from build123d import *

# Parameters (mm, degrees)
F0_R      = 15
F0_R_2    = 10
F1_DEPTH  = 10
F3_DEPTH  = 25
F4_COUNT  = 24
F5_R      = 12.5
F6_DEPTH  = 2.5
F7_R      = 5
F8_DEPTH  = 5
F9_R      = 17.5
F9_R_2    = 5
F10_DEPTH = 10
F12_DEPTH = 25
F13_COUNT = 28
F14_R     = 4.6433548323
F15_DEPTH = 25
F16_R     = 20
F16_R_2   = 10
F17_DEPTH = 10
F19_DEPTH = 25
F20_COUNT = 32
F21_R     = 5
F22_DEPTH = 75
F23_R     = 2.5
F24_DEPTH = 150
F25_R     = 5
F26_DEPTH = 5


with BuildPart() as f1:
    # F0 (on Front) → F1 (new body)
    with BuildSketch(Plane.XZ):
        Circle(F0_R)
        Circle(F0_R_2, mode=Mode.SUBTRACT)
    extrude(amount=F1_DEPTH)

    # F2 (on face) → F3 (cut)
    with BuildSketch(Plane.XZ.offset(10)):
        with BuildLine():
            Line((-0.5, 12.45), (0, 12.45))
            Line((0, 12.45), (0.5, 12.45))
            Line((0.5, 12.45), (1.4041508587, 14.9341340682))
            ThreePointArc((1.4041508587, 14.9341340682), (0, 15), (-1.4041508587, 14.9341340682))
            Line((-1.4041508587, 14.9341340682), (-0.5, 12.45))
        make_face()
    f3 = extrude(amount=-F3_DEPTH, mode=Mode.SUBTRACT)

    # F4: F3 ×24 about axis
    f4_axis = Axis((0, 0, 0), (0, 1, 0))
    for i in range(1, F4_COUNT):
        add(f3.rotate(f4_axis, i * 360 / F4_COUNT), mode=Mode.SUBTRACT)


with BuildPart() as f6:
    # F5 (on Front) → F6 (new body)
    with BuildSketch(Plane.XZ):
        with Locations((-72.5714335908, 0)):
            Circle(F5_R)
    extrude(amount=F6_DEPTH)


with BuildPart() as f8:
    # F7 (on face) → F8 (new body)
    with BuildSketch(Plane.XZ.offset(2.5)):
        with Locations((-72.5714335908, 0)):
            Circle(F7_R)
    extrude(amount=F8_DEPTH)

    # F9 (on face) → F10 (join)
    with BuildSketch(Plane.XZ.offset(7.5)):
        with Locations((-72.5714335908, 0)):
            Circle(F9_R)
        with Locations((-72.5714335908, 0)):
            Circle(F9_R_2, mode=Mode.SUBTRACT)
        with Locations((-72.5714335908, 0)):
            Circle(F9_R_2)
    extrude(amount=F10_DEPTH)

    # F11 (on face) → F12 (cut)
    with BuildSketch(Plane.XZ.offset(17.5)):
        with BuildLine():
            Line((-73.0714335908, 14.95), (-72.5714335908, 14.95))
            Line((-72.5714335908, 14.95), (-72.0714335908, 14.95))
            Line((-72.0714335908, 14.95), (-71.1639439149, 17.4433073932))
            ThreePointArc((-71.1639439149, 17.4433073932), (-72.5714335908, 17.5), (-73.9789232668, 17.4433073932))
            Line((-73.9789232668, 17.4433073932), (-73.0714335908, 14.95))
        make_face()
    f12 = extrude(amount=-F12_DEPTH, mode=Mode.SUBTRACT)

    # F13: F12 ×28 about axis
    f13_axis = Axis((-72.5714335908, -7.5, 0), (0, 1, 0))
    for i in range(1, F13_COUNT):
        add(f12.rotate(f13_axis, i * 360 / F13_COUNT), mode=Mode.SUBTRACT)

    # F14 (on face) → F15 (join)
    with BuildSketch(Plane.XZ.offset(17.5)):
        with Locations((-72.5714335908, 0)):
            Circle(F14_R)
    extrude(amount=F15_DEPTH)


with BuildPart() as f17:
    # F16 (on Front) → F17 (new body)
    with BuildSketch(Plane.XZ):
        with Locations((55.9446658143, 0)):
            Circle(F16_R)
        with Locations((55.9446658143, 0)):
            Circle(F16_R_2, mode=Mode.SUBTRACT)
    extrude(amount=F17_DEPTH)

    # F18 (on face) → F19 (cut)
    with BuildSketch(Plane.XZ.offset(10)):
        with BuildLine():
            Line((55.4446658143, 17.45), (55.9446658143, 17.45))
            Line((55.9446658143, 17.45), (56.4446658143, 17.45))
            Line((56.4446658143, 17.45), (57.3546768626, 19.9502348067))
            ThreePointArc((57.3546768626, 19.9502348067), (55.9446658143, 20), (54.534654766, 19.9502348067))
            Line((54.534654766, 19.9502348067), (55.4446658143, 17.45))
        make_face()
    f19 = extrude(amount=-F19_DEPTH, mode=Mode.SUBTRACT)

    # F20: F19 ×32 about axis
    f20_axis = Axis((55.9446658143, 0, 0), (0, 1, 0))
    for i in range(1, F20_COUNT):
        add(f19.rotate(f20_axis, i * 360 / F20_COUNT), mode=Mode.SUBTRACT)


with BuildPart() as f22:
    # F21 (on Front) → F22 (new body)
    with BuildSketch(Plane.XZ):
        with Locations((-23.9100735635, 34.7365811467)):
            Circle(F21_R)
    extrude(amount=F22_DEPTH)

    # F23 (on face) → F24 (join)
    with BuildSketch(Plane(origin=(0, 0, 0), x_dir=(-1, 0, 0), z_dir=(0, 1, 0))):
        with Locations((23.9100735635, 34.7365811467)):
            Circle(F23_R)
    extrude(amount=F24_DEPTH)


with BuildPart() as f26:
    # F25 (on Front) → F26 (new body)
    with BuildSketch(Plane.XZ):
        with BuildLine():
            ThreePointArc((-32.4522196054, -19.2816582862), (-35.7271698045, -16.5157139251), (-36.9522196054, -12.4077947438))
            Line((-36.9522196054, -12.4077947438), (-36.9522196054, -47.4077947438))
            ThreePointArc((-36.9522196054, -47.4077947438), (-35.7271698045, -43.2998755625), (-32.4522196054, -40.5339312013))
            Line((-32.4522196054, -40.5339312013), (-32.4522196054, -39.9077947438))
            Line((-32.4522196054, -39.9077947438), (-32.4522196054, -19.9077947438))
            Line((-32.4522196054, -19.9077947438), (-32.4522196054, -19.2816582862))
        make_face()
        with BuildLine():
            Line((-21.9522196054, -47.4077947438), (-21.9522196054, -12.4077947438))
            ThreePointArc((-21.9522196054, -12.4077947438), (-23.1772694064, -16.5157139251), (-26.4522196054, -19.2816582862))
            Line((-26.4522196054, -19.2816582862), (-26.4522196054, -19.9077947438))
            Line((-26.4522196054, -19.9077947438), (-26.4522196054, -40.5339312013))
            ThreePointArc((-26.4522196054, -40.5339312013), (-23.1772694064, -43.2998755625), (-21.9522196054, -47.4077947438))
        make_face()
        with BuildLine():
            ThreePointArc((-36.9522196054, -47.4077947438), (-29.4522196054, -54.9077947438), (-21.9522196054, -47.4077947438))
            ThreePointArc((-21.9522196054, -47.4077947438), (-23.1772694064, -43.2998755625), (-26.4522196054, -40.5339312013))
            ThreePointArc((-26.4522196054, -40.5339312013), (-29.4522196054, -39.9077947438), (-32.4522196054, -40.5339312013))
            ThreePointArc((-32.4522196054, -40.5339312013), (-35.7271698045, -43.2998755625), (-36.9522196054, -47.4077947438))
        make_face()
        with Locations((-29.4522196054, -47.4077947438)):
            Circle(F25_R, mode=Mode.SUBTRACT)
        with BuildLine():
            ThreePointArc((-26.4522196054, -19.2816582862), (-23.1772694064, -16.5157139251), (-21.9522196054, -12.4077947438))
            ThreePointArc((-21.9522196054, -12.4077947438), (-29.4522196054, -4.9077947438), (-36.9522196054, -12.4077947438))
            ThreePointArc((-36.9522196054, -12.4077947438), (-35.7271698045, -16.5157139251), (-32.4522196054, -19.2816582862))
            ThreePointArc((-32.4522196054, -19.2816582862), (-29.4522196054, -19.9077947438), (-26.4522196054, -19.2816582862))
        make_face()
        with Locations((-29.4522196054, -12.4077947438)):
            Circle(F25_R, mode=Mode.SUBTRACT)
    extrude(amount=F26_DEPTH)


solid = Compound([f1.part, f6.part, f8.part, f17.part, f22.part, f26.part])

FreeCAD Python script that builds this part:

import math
import FreeCAD as App
import Part
import Sketcher
from FreeCAD import Vector
Q = App.Units.Quantity

doc = App.newDocument("Part")
body = doc.addObject("PartDesign::Body", "Body")

# Sketch on XZ plane
sketch1 = body.newObject("Sketcher::SketchObject", "Sketch")
sketch1.AttachmentSupport = (doc.getObject("XZ_Plane"), [""])
sketch1.MapMode = "FlatFace"
sketch1.addGeometry(Part.Circle(Vector(0, 0, 0), Vector(0, 0, 1), 15), False)
sketch1.addGeometry(Part.Circle(Vector(0, 0, 0), Vector(0, 0, 1), 10), False)
sketch1.addConstraint(Sketcher.Constraint("Coincident", 0, 3, -1, 1))
sketch1.addConstraint(Sketcher.Constraint("Coincident", 1, 3, -1, 1))
sketch1.addConstraint(Sketcher.Constraint("Diameter", 0, 30.0))
sketch1.addConstraint(Sketcher.Constraint("Diameter", 1, 20.0))
pad1 = body.newObject("PartDesign::Pad", "Pad")
pad1.Profile = sketch1
pad1.Length = 10

# Sketch on XZ plane
sketch2 = body.newObject("Sketcher::SketchObject", "Sketch001")
sketch2.AttachmentSupport = (doc.getObject("XZ_Plane"), [""])
sketch2.MapMode = "FlatFace"
sketch2.AttachmentOffset = App.Placement(Vector(0, 0, 10), App.Rotation())
sketch2.addGeometry(Part.LineSegment(Vector(-0.5, 12.4, 0), Vector(0.5, 12.4, 0)), False)
sketch2.addGeometry(Part.LineSegment(Vector(0.5, 12.4, 0), Vector(1.4, 14.9, 0)), False)
sketch2.addGeometry(Part.ArcOfCircle(Part.Circle(Vector(0, 0, 0), Vector(0, 0, 1), 15), math.radians(84.63), math.radians(95.37)), False)
sketch2.addGeometry(Part.LineSegment(Vector(-1.4, 14.9, 0), Vector(-0.5, 12.4, 0)), False)
sketch2.addConstraint(Sketcher.Constraint("Coincident", 0, 2, 1, 1))
sketch2.addConstraint(Sketcher.Constraint("Coincident", 1, 2, 2, 1))
sketch2.addConstraint(Sketcher.Constraint("Coincident", 2, 2, 3, 1))
sketch2.addConstraint(Sketcher.Constraint("Coincident", 3, 2, 0, 1))
sketch2.addConstraint(Sketcher.Constraint("Horizontal", 0))
sketch2.addConstraint(Sketcher.Constraint("Coincident", 2, 3, -1, 1))
sketch2.addConstraint(Sketcher.Constraint("Horizontal", 1, 2, 2, 2))
sketch2.addConstraint(Sketcher.Constraint("Equal", 1, 3))
sketch2.addConstraint(Sketcher.Constraint("Radius", 2, 15.0))
sketch2.addConstraint(Sketcher.Constraint("DistanceX", 0, 1, 0, 2, 1.0))
sketch2.addConstraint(Sketcher.Constraint("Angle", 1, Q("70 deg")))
sketch2.addConstraint(Sketcher.Constraint("DistanceY", -1, 1, 0, 2, 12.45))
pocket1 = body.newObject("PartDesign::Pocket", "Pocket")
pocket1.Profile = sketch2
pocket1.Length = 25
doc.recompute()

polarpattern = body.newObject("PartDesign::PolarPattern", "PolarPattern")
polarpattern.Originals = [pocket1]
polarpattern.Axis = (doc.getObject("Y_Axis"), [""])
polarpattern.Angle = 360
polarpattern.Occurrences = 24
body.Tip = polarpattern
body2 = doc.addObject("PartDesign::Body", "Body001")

# Sketch on XZ plane
sketch3 = body2.newObject("Sketcher::SketchObject", "Sketch002")
sketch3.AttachmentSupport = (doc.getObject("XZ_Plane001"), [""])
sketch3.MapMode = "FlatFace"
sketch3.addGeometry(Part.Circle(Vector(-73, 0, 0), Vector(0, 0, 1), 12), False)
sketch3.addConstraint(Sketcher.Constraint("PointOnObject", 0, 3, -1))
sketch3.addConstraint(Sketcher.Constraint("Diameter", 0, 25.0))
sketch3.addConstraint(Sketcher.Constraint("DistanceX", 0, 3, -1, 1, 72.571434))
pad2 = body2.newObject("PartDesign::Pad", "Pad001")
pad2.Profile = sketch3
pad2.Length = 2.5
body3 = doc.addObject("PartDesign::Body", "Body002")

# Sketch on XZ plane
sketch4 = body3.newObject("Sketcher::SketchObject", "Sketch003")
sketch4.AttachmentSupport = (doc.getObject("XZ_Plane002"), [""])
sketch4.MapMode = "FlatFace"
sketch4.AttachmentOffset = App.Placement(Vector(0, 0, 2.5), App.Rotation())
sketch4.addGeometry(Part.Circle(Vector(-73, 0, 0), Vector(0, 0, 1), 5), False)
sketch4.addConstraint(Sketcher.Constraint("PointOnObject", 0, 3, -1))
sketch4.addConstraint(Sketcher.Constraint("Diameter", 0, 10.0))
sketch4.addConstraint(Sketcher.Constraint("DistanceX", 0, 3, -1, 1, 72.571434))
pad3 = body3.newObject("PartDesign::Pad", "Pad002")
pad3.Profile = sketch4
pad3.Length = 5

# Sketch on XZ plane
sketch5 = body3.newObject("Sketcher::SketchObject", "Sketch004")
sketch5.AttachmentSupport = (doc.getObject("XZ_Plane002"), [""])
sketch5.MapMode = "FlatFace"
sketch5.AttachmentOffset = App.Placement(Vector(0, 0, 7.5), App.Rotation())
sketch5.addGeometry(Part.Circle(Vector(-73, 0, 0), Vector(0, 0, 1), 18), False)
sketch5.addConstraint(Sketcher.Constraint("PointOnObject", 0, 3, -1))
sketch5.addConstraint(Sketcher.Constraint("Diameter", 0, 35.0))
sketch5.addConstraint(Sketcher.Constraint("DistanceX", 0, 3, -1, 1, 72.571434))
pad4 = body3.newObject("PartDesign::Pad", "Pad003")
pad4.Profile = sketch5
pad4.Length = 10

# Sketch on XZ plane
sketch6 = body3.newObject("Sketcher::SketchObject", "Sketch005")
sketch6.AttachmentSupport = (doc.getObject("XZ_Plane002"), [""])
sketch6.MapMode = "FlatFace"
sketch6.AttachmentOffset = App.Placement(Vector(0, 0, 17.5), App.Rotation())
sketch6.addGeometry(Part.LineSegment(Vector(-73.1, 14.9, 0), Vector(-72.1, 14.9, 0)), False)
sketch6.addGeometry(Part.LineSegment(Vector(-72.1, 14.9, 0), Vector(-71.2, 17.4, 0)), False)
sketch6.addGeometry(Part.ArcOfCircle(Part.Circle(Vector(-72.6, 0, 0), Vector(0, 0, 1), 17.5), math.radians(85.39), math.radians(94.61)), False)
sketch6.addGeometry(Part.LineSegment(Vector(-74, 17.4, 0), Vector(-73.1, 14.9, 0)), False)
sketch6.addConstraint(Sketcher.Constraint("Coincident", 0, 2, 1, 1))
sketch6.addConstraint(Sketcher.Constraint("Coincident", 1, 2, 2, 1))
sketch6.addConstraint(Sketcher.Constraint("Coincident", 2, 2, 3, 1))
sketch6.addConstraint(Sketcher.Constraint("Coincident", 3, 2, 0, 1))
sketch6.addConstraint(Sketcher.Constraint("Horizontal", 0))
sketch6.addConstraint(Sketcher.Constraint("PointOnObject", 2, 3, -1))
sketch6.addConstraint(Sketcher.Constraint("Horizontal", 1, 2, 2, 2))
sketch6.addConstraint(Sketcher.Constraint("Equal", 1, 3))
sketch6.addConstraint(Sketcher.Constraint("Radius", 2, 17.5))
sketch6.addConstraint(Sketcher.Constraint("DistanceX", 0, 1, 0, 2, 1.0))
sketch6.addConstraint(Sketcher.Constraint("Angle", 1, Q("70 deg")))
sketch6.addConstraint(Sketcher.Constraint("DistanceY", -1, 1, 0, 2, 14.95))
sketch6.addConstraint(Sketcher.Constraint("DistanceX", 2, 3, -1, 1, 72.571434))
pocket2 = body3.newObject("PartDesign::Pocket", "Pocket001")
pocket2.Profile = sketch6
pocket2.Length = 25
doc.recompute()

datumline = body3.newObject("PartDesign::Line", "DatumLine")
datumline.Placement = App.Placement(Vector(-72.571434, 0, 0), App.Rotation(Vector(0, 0, 1), Vector(0, 1, 0)))
polarpattern2 = body3.newObject("PartDesign::PolarPattern", "PolarPattern001")
polarpattern2.Originals = [pocket2]
polarpattern2.Axis = (datumline, [""])
polarpattern2.Angle = 360
polarpattern2.Occurrences = 28
body3.Tip = polarpattern2

# Sketch on XZ plane
sketch7 = body3.newObject("Sketcher::SketchObject", "Sketch006")
sketch7.AttachmentSupport = (doc.getObject("XZ_Plane002"), [""])
sketch7.MapMode = "FlatFace"
sketch7.AttachmentOffset = App.Placement(Vector(0, 0, 17.5), App.Rotation())
sketch7.addGeometry(Part.Circle(Vector(-72.6, 0, 0), Vector(0, 0, 1), 4.6), False)
sketch7.addConstraint(Sketcher.Constraint("PointOnObject", 0, 3, -1))
sketch7.addConstraint(Sketcher.Constraint("Diameter", 0, 9.28671))
sketch7.addConstraint(Sketcher.Constraint("DistanceX", 0, 3, -1, 1, 72.571434))
pad5 = body3.newObject("PartDesign::Pad", "Pad004")
pad5.Profile = sketch7
pad5.Length = 25
body4 = doc.addObject("PartDesign::Body", "Body003")

# Sketch on XZ plane
sketch8 = body4.newObject("Sketcher::SketchObject", "Sketch007")
sketch8.AttachmentSupport = (doc.getObject("XZ_Plane003"), [""])
sketch8.MapMode = "FlatFace"
sketch8.addGeometry(Part.Circle(Vector(56, 0, 0), Vector(0, 0, 1), 20), False)
sketch8.addGeometry(Part.Circle(Vector(56, 0, 0), Vector(0, 0, 1), 10), False)
sketch8.addConstraint(Sketcher.Constraint("Coincident", 1, 3, 0, 3))
sketch8.addConstraint(Sketcher.Constraint("PointOnObject", 0, 3, -1))
sketch8.addConstraint(Sketcher.Constraint("Diameter", 0, 40.0))
sketch8.addConstraint(Sketcher.Constraint("Diameter", 1, 20.0))
sketch8.addConstraint(Sketcher.Constraint("DistanceX", -1, 1, 0, 3, 55.944666))
pad6 = body4.newObject("PartDesign::Pad", "Pad005")
pad6.Profile = sketch8
pad6.Length = 10

# Sketch on XZ plane
sketch9 = body4.newObject("Sketcher::SketchObject", "Sketch008")
sketch9.AttachmentSupport = (doc.getObject("XZ_Plane003"), [""])
sketch9.MapMode = "FlatFace"
sketch9.AttachmentOffset = App.Placement(Vector(0, 0, 10), App.Rotation())
sketch9.addGeometry(Part.LineSegment(Vector(55.4, 17.4, 0), Vector(56.4, 17.4, 0)), False)
sketch9.addGeometry(Part.LineSegment(Vector(56.4, 17.4, 0), Vector(57.4, 20, 0)), False)
sketch9.addGeometry(Part.ArcOfCircle(Part.Circle(Vector(55.9, 0, 0), Vector(0, 0, 1), 20), math.radians(85.96), math.radians(94.04)), False)
sketch9.addGeometry(Part.LineSegment(Vector(54.5, 20, 0), Vector(55.4, 17.4, 0)), False)
sketch9.addConstraint(Sketcher.Constraint("Coincident", 0, 2, 1, 1))
sketch9.addConstraint(Sketcher.Constraint("Coincident", 1, 2, 2, 1))
sketch9.addConstraint(Sketcher.Constraint("Coincident", 2, 2, 3, 1))
sketch9.addConstraint(Sketcher.Constraint("Coincident", 3, 2, 0, 1))
sketch9.addConstraint(Sketcher.Constraint("Horizontal", 0))
sketch9.addConstraint(Sketcher.Constraint("PointOnObject", 2, 3, -1))
sketch9.addConstraint(Sketcher.Constraint("Horizontal", 1, 2, 2, 2))
sketch9.addConstraint(Sketcher.Constraint("Equal", 1, 3))
sketch9.addConstraint(Sketcher.Constraint("Radius", 2, 20.0))
sketch9.addConstraint(Sketcher.Constraint("DistanceX", 0, 1, 0, 2, 1.0))
sketch9.addConstraint(Sketcher.Constraint("Angle", 1, Q("70 deg")))
sketch9.addConstraint(Sketcher.Constraint("DistanceY", -1, 1, 0, 2, 17.45))
sketch9.addConstraint(Sketcher.Constraint("DistanceX", -1, 1, 2, 3, 55.944666))
pocket3 = body4.newObject("PartDesign::Pocket", "Pocket002")
pocket3.Profile = sketch9
pocket3.Length = 25
doc.recompute()

datumline2 = body4.newObject("PartDesign::Line", "DatumLine001")
datumline2.Placement = App.Placement(Vector(55.944666, 0, 0), App.Rotation(Vector(0, 0, 1), Vector(0, 1, 0)))
polarpattern3 = body4.newObject("PartDesign::PolarPattern", "PolarPattern002")
polarpattern3.Originals = [pocket3]
polarpattern3.Axis = (datumline2, [""])
polarpattern3.Angle = 360
polarpattern3.Occurrences = 32
body4.Tip = polarpattern3
body5 = doc.addObject("PartDesign::Body", "Body004")

# Sketch on XZ plane
sketch10 = body5.newObject("Sketcher::SketchObject", "Sketch009")
sketch10.AttachmentSupport = (doc.getObject("XZ_Plane004"), [""])
sketch10.MapMode = "FlatFace"
sketch10.addGeometry(Part.Circle(Vector(-24, 35, 0), Vector(0, 0, 1), 5), False)
sketch10.addConstraint(Sketcher.Constraint("Diameter", 0, 10.0))
sketch10.addConstraint(Sketcher.Constraint("DistanceY", -1, 1, 0, 3, 34.736581))
sketch10.addConstraint(Sketcher.Constraint("DistanceX", 0, 3, -1, 1, 23.910074))
pad7 = body5.newObject("PartDesign::Pad", "Pad006")
pad7.Profile = sketch10
pad7.Length = 75

# Sketch on XZ plane
sketch11 = body5.newObject("Sketcher::SketchObject", "Sketch010")
sketch11.AttachmentSupport = (doc.getObject("XZ_Plane004"), [""])
sketch11.MapMode = "FlatFace"
sketch11.addGeometry(Part.Circle(Vector(-23.9, 34.7, 0), Vector(0, 0, 1), 2.5), False)
sketch11.addConstraint(Sketcher.Constraint("Diameter", 0, 5.0))
sketch11.addConstraint(Sketcher.Constraint("DistanceY", -1, 1, 0, 3, 34.736581))
sketch11.addConstraint(Sketcher.Constraint("DistanceX", 0, 3, -1, 1, 23.910074))
pad8 = body5.newObject("PartDesign::Pad", "Pad007")
pad8.Profile = sketch11
pad8.Length = 150
pad8.Reversed = True
body6 = doc.addObject("PartDesign::Body", "Body005")

# Sketch on XZ plane
sketch12 = body6.newObject("Sketcher::SketchObject", "Sketch011")
sketch12.AttachmentSupport = (doc.getObject("XZ_Plane005"), [""])
sketch12.MapMode = "FlatFace"
sketch12.addGeometry(Part.LineSegment(Vector(-37, -12, 0), Vector(-37, -47, 0)), False)
sketch12.addGeometry(Part.ArcOfCircle(Part.Circle(Vector(-29, -47, 0), Vector(0, 0, 1), 8), math.radians(180), math.radians(360)), False)
sketch12.addGeometry(Part.LineSegment(Vector(-22, -47, 0), Vector(-22, -12, 0)), False)
sketch12.addGeometry(Part.ArcOfCircle(Part.Circle(Vector(-29, -12, 0), Vector(0, 0, 1), 8), math.radians(0), math.radians(180)), False)
sketch12.addGeometry(Part.Circle(Vector(-29, -47, 0), Vector(0, 0, 1), 5), False)
sketch12.addGeometry(Part.LineSegment(Vector(-32, -41, 0), Vector(-32, -19, 0)), False)
sketch12.addGeometry(Part.ArcOfCircle(Part.Circle(Vector(-29, -12, 0), Vector(0, 0, 1), 8), math.radians(-114), math.radians(-66)), False)
sketch12.addGeometry(Part.LineSegment(Vector(-26, -19, 0), Vector(-26, -41, 0)), False)
sketch12.addGeometry(Part.ArcOfCircle(Part.Circle(Vector(-29, -47, 0), Vector(0, 0, 1), 8), math.radians(66), math.radians(114)), False)
sketch12.addGeometry(Part.Circle(Vector(-29, -12, 0), Vector(0, 0, 1), 5), False)
sketch12.addConstraint(Sketcher.Constraint("Tangent", 0, 2, 1, 1))
sketch12.addConstraint(Sketcher.Constraint("Tangent", 1, 2, 2, 1))
sketch12.addConstraint(Sketcher.Constraint("Tangent", 2, 2, 3, 1))
sketch12.addConstraint(Sketcher.Constraint("Tangent", 3, 2, 0, 1))
sketch12.addConstraint(Sketcher.Constraint("Coincident", 5, 2, 6, 1))
sketch12.addConstraint(Sketcher.Constraint("Coincident", 6, 2, 7, 1))
sketch12.addConstraint(Sketcher.Constraint("Coincident", 7, 2, 8, 1))
sketch12.addConstraint(Sketcher.Constraint("Coincident", 8, 2, 5, 1))
sketch12.addConstraint(Sketcher.Constraint("Vertical", 0))
sketch12.addConstraint(Sketcher.Constraint("Vertical", 2))
sketch12.addConstraint(Sketcher.Constraint("Vertical", 5))
sketch12.addConstraint(Sketcher.Constraint("Vertical", 7))
sketch12.addConstraint(Sketcher.Constraint("Coincident", 4, 3, 1, 3))
sketch12.addConstraint(Sketcher.Constraint("Coincident", 6, 3, 3, 3))
sketch12.addConstraint(Sketcher.Constraint("Coincident", 8, 3, 1, 3))
sketch12.addConstraint(Sketcher.Constraint("Coincident", 9, 3, 3, 3))
sketch12.addConstraint(Sketcher.Constraint("Equal", 3, 6))
sketch12.addConstraint(Sketcher.Constraint("Equal", 6, 8))
sketch12.addConstraint(Sketcher.Constraint("Equal", 4, 9))
sketch12.addConstraint(Sketcher.Constraint("Horizontal", 5, 2, 6, 2))
sketch12.addConstraint(Sketcher.Constraint("Diameter", 4, 10.0))
sketch12.addConstraint(Sketcher.Constraint("Radius", 1, 7.5))
sketch12.addConstraint(Sketcher.Constraint("DistanceY", 0, 2, 0, 1, 35.0))
sketch12.addConstraint(Sketcher.Constraint("DistanceX", 5, 2, 3, 3, 3.0))
sketch12.addConstraint(Sketcher.Constraint("DistanceX", 1, 3, -1, 1, 29.45222))
sketch12.addConstraint(Sketcher.Constraint("DistanceY", 5, 2, -1, 1, 19.281658))
pad9 = body6.newObject("PartDesign::Pad", "Pad008")
pad9.Profile = sketch12
pad9.Length = 5

doc.recompute()
